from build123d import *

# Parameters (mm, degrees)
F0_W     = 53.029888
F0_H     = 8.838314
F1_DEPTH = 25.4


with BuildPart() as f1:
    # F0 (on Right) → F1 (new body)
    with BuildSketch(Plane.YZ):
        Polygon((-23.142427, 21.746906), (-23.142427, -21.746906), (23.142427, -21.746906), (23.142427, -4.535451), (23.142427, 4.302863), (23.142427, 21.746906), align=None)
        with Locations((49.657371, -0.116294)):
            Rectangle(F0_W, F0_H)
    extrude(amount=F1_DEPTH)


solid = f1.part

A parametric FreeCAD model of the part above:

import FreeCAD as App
import Part
import Sketcher
from FreeCAD import Vector
Q = App.Units.Quantity

doc = App.newDocument("Part")
body = doc.addObject("PartDesign::Body", "Body")

sketch1 = doc.addObject("Sketcher::SketchObject", "Sketch")
body.addObject(sketch1)
sketch1.AttachmentSupport = (doc.YZ_Plane, [""])
sketch1.MapMode = "FlatFace"
sketch1.addGeometry(Part.LineSegment(Vector(-23.142427, 21.746906, 0), Vector(-23.142427, -21.746906, 0)), False)
sketch1.addGeometry(Part.LineSegment(Vector(-23.142427, -21.746906, 0), Vector(23.142427, -21.746906, 0)), False)
sketch1.addGeometry(Part.LineSegment(Vector(23.142427, -21.746906, 0), Vector(23.142427, -4.535451, 0)), False)
sketch1.addGeometry(Part.LineSegment(Vector(23.142427, -4.535451, 0), Vector(76.172315, -4.535451, 0)), False)
sketch1.addGeometry(Part.LineSegment(Vector(76.172315, -4.535451, 0), Vector(76.172315, 4.302863, 0)), False)
sketch1.addGeometry(Part.LineSegment(Vector(76.172315, 4.302863, 0), Vector(23.142427, 4.302863, 0)), False)
sketch1.addGeometry(Part.LineSegment(Vector(23.142427, 4.302863, 0), Vector(23.142427, 21.746906, 0)), False)
sketch1.addGeometry(Part.LineSegment(Vector(23.142427, 21.746906, 0), Vector(-23.142427, 21.746906, 0)), False)
sketch1.addConstraint(Sketcher.Constraint("Coincident", 0, 2, 1, 1))
sketch1.addConstraint(Sketcher.Constraint("Coincident", 1, 2, 2, 1))
sketch1.addConstraint(Sketcher.Constraint("Coincident", 2, 2, 3, 1))
sketch1.addConstraint(Sketcher.Constraint("Coincident", 3, 2, 4, 1))
sketch1.addConstraint(Sketcher.Constraint("Coincident", 4, 2, 5, 1))
sketch1.addConstraint(Sketcher.Constraint("Coincident", 5, 2, 6, 1))
sketch1.addConstraint(Sketcher.Constraint("Coincident", 6, 2, 7, 1))
sketch1.addConstraint(Sketcher.Constraint("Coincident", 7, 2, 0, 1))
sketch1.addConstraint(Sketcher.Constraint("Vertical", 0))
sketch1.addConstraint(Sketcher.Constraint("Horizontal", 1))
sketch1.addConstraint(Sketcher.Constraint("Vertical", 2))
sketch1.addConstraint(Sketcher.Constraint("Horizontal", 3))
sketch1.addConstraint(Sketcher.Constraint("Vertical", 4))
sketch1.addConstraint(Sketcher.Constraint("Horizontal", 5))
sketch1.addConstraint(Sketcher.Constraint("Vertical", 6))
sketch1.addConstraint(Sketcher.Constraint("Horizontal", 7))
sketch1.addConstraint(Sketcher.Constraint("Symmetric", 0, 2, 6, 2, -1, 1))
sketch1.addConstraint(Sketcher.Constraint("Vertical", 2, 2, 5, 2))
sketch1.addConstraint(Sketcher.Constraint("DistanceY", 0, 2, 0, 1, Q("43.493812 mm")))
sketch1.addConstraint(Sketcher.Constraint("DistanceX", 1, 1, 1, 2, Q("46.284854 mm")))
sketch1.addConstraint(Sketcher.Constraint("DistanceX", 3, 1, 3, 2, Q("53.029888 mm")))
sketch1.addConstraint(Sketcher.Constraint("DistanceY", 2, 1, 2, 2, Q("17.211455 mm")))
sketch1.addConstraint(Sketcher.Constraint("DistanceY", 4, 1, 4, 2, Q("8.838314 mm")))
pad1 = doc.addObject("PartDesign::Pad", "Pad")
body.addObject(pad1)
pad1.Profile = sketch1
pad1.Length = Q("1 in")

doc.recompute()
